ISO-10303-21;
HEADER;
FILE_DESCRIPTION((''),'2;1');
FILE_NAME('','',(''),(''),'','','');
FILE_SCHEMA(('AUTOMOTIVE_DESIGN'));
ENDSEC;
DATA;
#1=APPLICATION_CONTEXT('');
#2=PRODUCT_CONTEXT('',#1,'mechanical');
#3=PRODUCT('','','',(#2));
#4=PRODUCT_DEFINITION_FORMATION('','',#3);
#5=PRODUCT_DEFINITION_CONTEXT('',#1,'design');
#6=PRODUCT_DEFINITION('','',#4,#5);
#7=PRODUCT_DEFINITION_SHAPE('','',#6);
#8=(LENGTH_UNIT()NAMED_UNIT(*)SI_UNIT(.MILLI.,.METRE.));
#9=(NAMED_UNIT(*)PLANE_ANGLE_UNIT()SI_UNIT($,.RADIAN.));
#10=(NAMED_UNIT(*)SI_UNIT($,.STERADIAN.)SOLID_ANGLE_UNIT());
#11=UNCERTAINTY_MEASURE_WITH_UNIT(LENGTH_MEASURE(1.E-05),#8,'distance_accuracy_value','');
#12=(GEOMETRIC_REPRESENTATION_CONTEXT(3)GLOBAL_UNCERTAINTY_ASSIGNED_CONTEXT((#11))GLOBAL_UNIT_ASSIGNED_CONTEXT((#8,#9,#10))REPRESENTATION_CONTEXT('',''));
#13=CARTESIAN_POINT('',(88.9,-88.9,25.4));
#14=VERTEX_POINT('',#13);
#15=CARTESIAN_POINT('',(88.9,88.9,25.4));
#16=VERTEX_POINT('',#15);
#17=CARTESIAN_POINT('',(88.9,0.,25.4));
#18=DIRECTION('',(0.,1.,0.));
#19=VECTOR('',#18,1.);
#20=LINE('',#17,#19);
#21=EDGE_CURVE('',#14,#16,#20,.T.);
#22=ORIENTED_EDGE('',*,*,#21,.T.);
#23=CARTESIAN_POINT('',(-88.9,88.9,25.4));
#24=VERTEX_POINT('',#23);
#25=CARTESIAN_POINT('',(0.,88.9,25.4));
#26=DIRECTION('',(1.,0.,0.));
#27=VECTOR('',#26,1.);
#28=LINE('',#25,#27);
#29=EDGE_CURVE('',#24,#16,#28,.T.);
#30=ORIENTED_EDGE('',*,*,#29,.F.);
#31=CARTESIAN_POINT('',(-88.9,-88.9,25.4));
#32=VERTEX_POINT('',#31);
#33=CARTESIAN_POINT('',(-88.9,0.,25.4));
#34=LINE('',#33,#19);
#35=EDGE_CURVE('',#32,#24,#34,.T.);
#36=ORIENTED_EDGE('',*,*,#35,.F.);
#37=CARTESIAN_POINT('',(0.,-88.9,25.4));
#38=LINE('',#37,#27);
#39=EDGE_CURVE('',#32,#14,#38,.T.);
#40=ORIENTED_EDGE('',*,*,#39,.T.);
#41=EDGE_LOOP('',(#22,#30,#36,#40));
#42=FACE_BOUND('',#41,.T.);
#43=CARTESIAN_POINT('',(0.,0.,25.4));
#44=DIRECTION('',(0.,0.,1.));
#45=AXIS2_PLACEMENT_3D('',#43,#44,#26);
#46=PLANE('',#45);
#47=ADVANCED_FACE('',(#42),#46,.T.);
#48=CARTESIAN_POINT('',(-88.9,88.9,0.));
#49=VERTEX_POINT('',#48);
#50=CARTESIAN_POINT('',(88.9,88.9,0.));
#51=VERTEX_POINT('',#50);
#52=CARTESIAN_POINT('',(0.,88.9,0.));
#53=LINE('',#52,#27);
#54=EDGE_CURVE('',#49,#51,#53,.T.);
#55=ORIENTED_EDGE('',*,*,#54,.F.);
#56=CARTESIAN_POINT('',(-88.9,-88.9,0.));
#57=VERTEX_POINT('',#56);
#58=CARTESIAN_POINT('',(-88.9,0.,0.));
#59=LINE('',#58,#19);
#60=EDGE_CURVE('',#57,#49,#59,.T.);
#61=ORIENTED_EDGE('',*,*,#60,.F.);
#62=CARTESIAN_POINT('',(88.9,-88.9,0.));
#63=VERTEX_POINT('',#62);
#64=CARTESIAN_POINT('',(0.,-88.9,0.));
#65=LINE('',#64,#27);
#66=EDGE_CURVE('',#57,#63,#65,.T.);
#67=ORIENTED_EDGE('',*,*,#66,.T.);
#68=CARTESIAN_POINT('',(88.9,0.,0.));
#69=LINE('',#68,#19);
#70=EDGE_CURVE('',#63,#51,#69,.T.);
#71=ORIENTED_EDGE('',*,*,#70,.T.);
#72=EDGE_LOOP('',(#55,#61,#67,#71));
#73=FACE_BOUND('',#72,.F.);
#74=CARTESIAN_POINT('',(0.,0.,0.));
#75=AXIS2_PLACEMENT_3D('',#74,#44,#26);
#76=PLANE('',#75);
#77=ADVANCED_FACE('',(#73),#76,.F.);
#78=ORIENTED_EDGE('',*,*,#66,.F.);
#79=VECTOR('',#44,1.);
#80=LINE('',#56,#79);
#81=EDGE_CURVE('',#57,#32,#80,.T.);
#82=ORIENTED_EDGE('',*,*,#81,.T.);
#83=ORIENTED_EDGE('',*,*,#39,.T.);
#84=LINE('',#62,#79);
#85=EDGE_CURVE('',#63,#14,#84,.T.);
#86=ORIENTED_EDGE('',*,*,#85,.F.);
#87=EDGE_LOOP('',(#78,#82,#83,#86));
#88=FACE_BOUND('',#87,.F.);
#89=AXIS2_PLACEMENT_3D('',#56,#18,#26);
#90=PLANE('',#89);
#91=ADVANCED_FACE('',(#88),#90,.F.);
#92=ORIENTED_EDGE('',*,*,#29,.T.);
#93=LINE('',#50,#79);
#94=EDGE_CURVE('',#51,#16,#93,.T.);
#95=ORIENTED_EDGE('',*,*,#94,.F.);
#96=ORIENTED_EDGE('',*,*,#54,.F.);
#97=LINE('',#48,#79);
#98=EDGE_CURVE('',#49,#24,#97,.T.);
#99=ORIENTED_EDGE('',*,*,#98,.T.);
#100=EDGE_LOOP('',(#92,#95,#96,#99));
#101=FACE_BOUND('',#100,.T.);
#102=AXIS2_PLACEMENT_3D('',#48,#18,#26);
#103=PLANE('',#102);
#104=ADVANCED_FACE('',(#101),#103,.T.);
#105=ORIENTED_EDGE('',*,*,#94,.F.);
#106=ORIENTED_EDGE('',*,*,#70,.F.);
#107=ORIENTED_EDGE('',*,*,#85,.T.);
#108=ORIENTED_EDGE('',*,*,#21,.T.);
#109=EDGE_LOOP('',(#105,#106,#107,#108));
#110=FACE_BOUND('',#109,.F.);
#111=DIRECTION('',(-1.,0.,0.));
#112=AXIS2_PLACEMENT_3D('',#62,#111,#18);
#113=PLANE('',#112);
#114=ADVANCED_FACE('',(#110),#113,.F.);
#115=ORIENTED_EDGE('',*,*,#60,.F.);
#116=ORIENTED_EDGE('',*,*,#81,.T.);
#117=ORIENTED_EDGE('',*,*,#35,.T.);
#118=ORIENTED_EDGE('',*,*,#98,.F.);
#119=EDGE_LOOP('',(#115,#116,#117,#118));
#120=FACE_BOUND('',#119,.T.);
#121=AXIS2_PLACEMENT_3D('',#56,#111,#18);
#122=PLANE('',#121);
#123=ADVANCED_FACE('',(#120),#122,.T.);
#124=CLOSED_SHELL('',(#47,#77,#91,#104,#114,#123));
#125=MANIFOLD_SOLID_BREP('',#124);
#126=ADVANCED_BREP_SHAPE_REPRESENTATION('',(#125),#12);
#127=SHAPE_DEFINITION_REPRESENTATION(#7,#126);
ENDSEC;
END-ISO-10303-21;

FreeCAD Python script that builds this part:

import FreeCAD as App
import Part
import Sketcher

V = App.Vector
Q = App.Units.Quantity


def add_polygon(sketch, points):
    """Adds a closed chain of lines whose ends are joined by coincident constraints."""
    first, n = sketch.GeometryCount, len(points)
    for a, b in zip(points, points[1:] + points[:1]):
        sketch.addGeometry(Part.LineSegment(App.Vector(*a, 0), App.Vector(*b, 0)), False)
    for i in range(n):
        sketch.addConstraint(Sketcher.Constraint("Coincident", first + i, 2, first + (i + 1) % n, 1))

doc = App.newDocument("Part")
body = doc.addObject("PartDesign::Body", "Body")

sketch1 = body.newObject("Sketcher::SketchObject", "Sketch")
sketch1.AttachmentSupport = (doc.getObject("XY_Plane"), [""])
sketch1.MapMode = "FlatFace"
add_polygon(sketch1, [(-89, 89), (-89, -89), (89, -89), (89, 89)])
sketch1.addConstraint([
    Sketcher.Constraint("Vertical", 0),
    Sketcher.Constraint("Horizontal", 1),
    Sketcher.Constraint("Vertical", 2),
    Sketcher.Constraint("Horizontal", 3),
    Sketcher.Constraint("Symmetric", 0, 2, 2, 2, -1, 1),
    Sketcher.Constraint("Equal", 3, 0),
    Sketcher.Constraint("DistanceX", 1, 1, 1, 2, Q("7 in")),
])
pad1 = body.newObject("PartDesign::Pad", "Pad")
pad1.Profile = sketch1
pad1.Length = Q("1 in")

sketch2 = body.newObject("Sketcher::SketchObject", "Sketch001")
sketch2.AttachmentSupport = (doc.getObject("XY_Plane"), [""])
sketch2.MapMode = "FlatFace"
add_polygon(sketch2, [(-45, 0), (-45, -22), (-22, -22), (-22, -67), (0, -67), (0, -44), (22, -44), (22, -22), (0, -22), (0, 0), (22, 0), (22, 23), (67, 23), (67, 45), (44, 45), (44, 67), (0, 67), (0, 23), (-22, 23), (-22, 67), (-67, 67), (-67, 45), (-45, 45), (-45, 23), (-67, 23), (-67, 0)])
add_polygon(sketch2, [(44, -22), (44, -67), (67, -67), (67, -22)])
add_polygon(sketch2, [(-67, -22), (-67, -44), (-45, -44), (-45, -22)])
sketch2.addConstraint([
    Sketcher.Constraint("Vertical", 0),
    Sketcher.Constraint("Vertical", 2),
    Sketcher.Constraint("Horizontal", 3),
    Sketcher.Constraint("Vertical", 4),
    Sketcher.Constraint("Horizontal", 5),
    Sketcher.Constraint("Vertical", 6),
    Sketcher.Constraint("Horizontal", 7),
    Sketcher.Constraint("Vertical", 8),
    Sketcher.Constraint("Horizontal", 9),
    Sketcher.Constraint("Vertical", 10),
    Sketcher.Constraint("Horizontal", 11),
    Sketcher.Constraint("Vertical", 12),
    Sketcher.Constraint("Horizontal", 13),
    Sketcher.Constraint("Vertical", 14),
    Sketcher.Constraint("Horizontal", 15),
    Sketcher.Constraint("Vertical", 16),
    Sketcher.Constraint("Horizontal", 17),
    Sketcher.Constraint("Vertical", 18),
    Sketcher.Constraint("Horizontal", 19),
    Sketcher.Constraint("Horizontal", 21),
    Sketcher.Constraint("Vertical", 22),
    Sketcher.Constraint("Horizontal", 23),
    Sketcher.Constraint("Vertical", 24),
    Sketcher.Constraint("Horizontal", 25),
    Sketcher.Constraint("Vertical", 26),
    Sketcher.Constraint("Horizontal", 27),
    Sketcher.Constraint("Vertical", 28),
    Sketcher.Constraint("Horizontal", 29),
    Sketcher.Constraint("Vertical", 30),
    Sketcher.Constraint("Horizontal", 31),
    Sketcher.Constraint("Vertical", 32),
    Sketcher.Constraint("Horizontal", 33),
    Sketcher.Constraint("Coincident", 8, 2, -1, 1),
    Sketcher.Constraint("Coincident", 32, 2, 0, 2),
    Sketcher.Constraint("PointOnObject", 3, 2, -2),
    Sketcher.Constraint("PointOnObject", 15, 2, -2),
    Sketcher.Constraint("PointOnObject", 24, 2, -1),
    Sketcher.Constraint("Horizontal", 1, 2, 6, 2),
    Sketcher.Constraint("Horizontal", 11, 2, 16, 2),
    Sketcher.Constraint("Horizontal", 15, 2, 18, 2),
    Sketcher.Constraint("Horizontal", 17, 2, 22, 2),
    Sketcher.Constraint("Horizontal", 3, 2, 26, 2),
    Sketcher.Constraint("Horizontal", 0, 2, 28, 2),
    Sketcher.Constraint("Vertical", 2, 2, 17, 2),
    Sketcher.Constraint("Vertical", 0, 2, 21, 2),
    Sketcher.Constraint("Vertical", 20, 2, 23, 2),
    Sketcher.Constraint("Vertical", 24, 2, 30, 2),
    Sketcher.Constraint("DistanceX", 9, 1, 9, 2, Q("22.499099 mm")),
    Sketcher.Constraint("DistanceX", 21, 1, 21, 2, Q("22.317298 mm")),
    Sketcher.Constraint("DistanceX", 5, 1, 5, 2, Q("22.443322 mm")),
    Sketcher.Constraint("DistanceX", 13, 2, 13, 1, Q("22.388022 mm")),
    Sketcher.Constraint("DistanceX", 15, 2, 15, 1, Q("44.157621 mm")),
    Sketcher.Constraint("DistanceX", 27, 1, 27, 2, Q("22.492748 mm")),
    Sketcher.Constraint("DistanceY", 4, 1, 4, 2, Q("22.490739 mm")),
    Sketcher.Constraint("DistanceY", 10, 1, 10, 2, Q("22.651171 mm")),
    Sketcher.Constraint("DistanceY", 16, 2, 16, 1, Q("44.46684 mm")),
    Sketcher.Constraint("DistanceY", 22, 2, 22, 1, Q("21.89499 mm")),
    Sketcher.Constraint("DistanceX", 19, 2, -1, 1, Q("67.136399 mm")),
    Sketcher.Constraint("DistanceX", 3, 1, 3, 2, Q("22.431135 mm")),
    Sketcher.Constraint("DistanceY", 0, 2, 0, 1, Q("22.146555 mm")),
    Sketcher.Constraint("DistanceY", 2, 2, 2, 1, Q("44.299943 mm")),
    Sketcher.Constraint("DistanceY", 8, 1, 8, 2, Q("22.290105 mm")),
    Sketcher.Constraint("DistanceY", 12, 1, 12, 2, Q("22.209933 mm")),
    Sketcher.Constraint("DistanceY", 30, 2, 30, 1, Q("22.221747 mm")),
    Sketcher.Constraint("DistanceX", 0, 2, 5, 2, Q("67.17663 mm")),
    Sketcher.Constraint("DistanceX", 5, 2, 27, 2, Q("44.086451 mm")),
])
pocket1 = body.newObject("PartDesign::Pocket", "Pocket")
pocket1.Profile = sketch2
pocket1.Length = Q("1 in")

doc.recompute()
